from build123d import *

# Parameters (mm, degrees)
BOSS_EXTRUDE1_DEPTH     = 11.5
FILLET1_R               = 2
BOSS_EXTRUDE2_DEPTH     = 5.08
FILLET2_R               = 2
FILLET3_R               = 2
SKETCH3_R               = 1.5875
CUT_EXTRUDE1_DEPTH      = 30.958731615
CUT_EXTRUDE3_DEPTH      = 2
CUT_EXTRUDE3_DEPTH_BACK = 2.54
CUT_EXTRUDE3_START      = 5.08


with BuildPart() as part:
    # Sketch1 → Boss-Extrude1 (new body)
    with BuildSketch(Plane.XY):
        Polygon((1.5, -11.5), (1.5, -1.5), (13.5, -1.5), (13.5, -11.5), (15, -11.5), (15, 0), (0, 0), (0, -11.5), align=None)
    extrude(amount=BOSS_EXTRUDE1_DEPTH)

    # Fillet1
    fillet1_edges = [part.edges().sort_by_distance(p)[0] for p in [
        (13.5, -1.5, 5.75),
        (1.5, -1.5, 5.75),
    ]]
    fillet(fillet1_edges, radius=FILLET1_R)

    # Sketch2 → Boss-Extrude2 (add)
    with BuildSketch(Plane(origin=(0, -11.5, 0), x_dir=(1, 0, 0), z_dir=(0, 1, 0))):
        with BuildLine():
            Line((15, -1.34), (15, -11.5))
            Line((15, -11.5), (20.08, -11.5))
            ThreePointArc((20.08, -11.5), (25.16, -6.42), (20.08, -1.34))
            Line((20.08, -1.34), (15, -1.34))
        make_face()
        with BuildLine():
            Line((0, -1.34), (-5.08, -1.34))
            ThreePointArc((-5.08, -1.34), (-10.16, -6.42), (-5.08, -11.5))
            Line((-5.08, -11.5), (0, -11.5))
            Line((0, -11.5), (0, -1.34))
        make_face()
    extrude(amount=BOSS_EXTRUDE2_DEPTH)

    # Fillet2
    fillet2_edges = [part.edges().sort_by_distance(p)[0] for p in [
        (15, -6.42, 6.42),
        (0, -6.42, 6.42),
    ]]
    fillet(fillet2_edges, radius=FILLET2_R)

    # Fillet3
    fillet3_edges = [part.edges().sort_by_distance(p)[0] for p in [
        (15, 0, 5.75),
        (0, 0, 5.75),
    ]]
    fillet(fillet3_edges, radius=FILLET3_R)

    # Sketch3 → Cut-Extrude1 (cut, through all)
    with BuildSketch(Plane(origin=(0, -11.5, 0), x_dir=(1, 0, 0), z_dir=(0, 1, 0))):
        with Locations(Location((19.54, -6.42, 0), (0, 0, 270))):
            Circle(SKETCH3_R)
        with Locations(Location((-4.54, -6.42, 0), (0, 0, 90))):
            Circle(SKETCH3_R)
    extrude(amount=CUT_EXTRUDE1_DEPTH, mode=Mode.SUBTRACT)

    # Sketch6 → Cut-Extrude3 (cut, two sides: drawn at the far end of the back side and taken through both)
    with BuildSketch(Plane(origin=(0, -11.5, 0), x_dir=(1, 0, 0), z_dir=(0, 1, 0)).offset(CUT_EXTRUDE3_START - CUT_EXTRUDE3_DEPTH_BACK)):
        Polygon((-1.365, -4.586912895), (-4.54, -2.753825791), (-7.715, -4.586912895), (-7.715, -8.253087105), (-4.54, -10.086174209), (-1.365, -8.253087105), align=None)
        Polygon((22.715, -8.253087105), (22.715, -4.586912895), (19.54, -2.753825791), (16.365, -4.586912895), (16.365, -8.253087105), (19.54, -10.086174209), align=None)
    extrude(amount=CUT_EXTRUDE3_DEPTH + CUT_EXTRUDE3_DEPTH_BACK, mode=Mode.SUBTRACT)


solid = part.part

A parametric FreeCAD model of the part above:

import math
import FreeCAD as App
import Part
import Sketcher
Q = App.Units.Quantity


def edges_at(feature, points):
    """Names of the edges that pass closest to the given points."""
    edges = feature.Shape.Edges
    near = lambda p: min(range(len(edges)), key=lambda i: edges[i].distToShape(Part.Vertex(*p))[0])
    return sorted({f"Edge{near(p) + 1}" for p in points})

doc = App.newDocument("Part")
body = doc.addObject("PartDesign::Body", "Body")

# Sketch on XY plane
sketch1 = body.newObject("Sketcher::SketchObject", "Sketch")
sketch1.AttachmentSupport = (doc.getObject("XY_Plane"), [""])
sketch1.MapMode = "FlatFace"
sketch1.addGeometry(Part.LineSegment(App.Vector(1.5, -11.5, 0), App.Vector(1.5, -1.5, 0)), False)
sketch1.addGeometry(Part.LineSegment(App.Vector(1.5, -1.5, 0), App.Vector(13.5, -1.5, 0)), False)
sketch1.addGeometry(Part.LineSegment(App.Vector(13.5, -1.5, 0), App.Vector(13.5, -11.5, 0)), False)
sketch1.addGeometry(Part.LineSegment(App.Vector(13.5, -11.5, 0), App.Vector(15, -11.5, 0)), False)
sketch1.addGeometry(Part.LineSegment(App.Vector(15, -11.5, 0), App.Vector(15, 0, 0)), False)
sketch1.addGeometry(Part.LineSegment(App.Vector(15, 0, 0), App.Vector(0, 0, 0)), False)
sketch1.addGeometry(Part.LineSegment(App.Vector(0, 0, 0), App.Vector(0, -11.5, 0)), False)
sketch1.addGeometry(Part.LineSegment(App.Vector(0, -11.5, 0), App.Vector(1.5, -11.5, 0)), False)
sketch1.addConstraint(Sketcher.Constraint("Coincident", 0, 2, 1, 1))
sketch1.addConstraint(Sketcher.Constraint("Coincident", 1, 2, 2, 1))
sketch1.addConstraint(Sketcher.Constraint("Coincident", 2, 2, 3, 1))
sketch1.addConstraint(Sketcher.Constraint("Coincident", 3, 2, 4, 1))
sketch1.addConstraint(Sketcher.Constraint("Coincident", 4, 2, 5, 1))
sketch1.addConstraint(Sketcher.Constraint("Coincident", 5, 2, 6, 1))
sketch1.addConstraint(Sketcher.Constraint("Coincident", 6, 2, 7, 1))
sketch1.addConstraint(Sketcher.Constraint("Coincident", 7, 2, 0, 1))
sketch1.addConstraint(Sketcher.Constraint("Vertical", 0))
sketch1.addConstraint(Sketcher.Constraint("Horizontal", 1))
sketch1.addConstraint(Sketcher.Constraint("Vertical", 2))
sketch1.addConstraint(Sketcher.Constraint("Horizontal", 3))
sketch1.addConstraint(Sketcher.Constraint("Vertical", 4))
sketch1.addConstraint(Sketcher.Constraint("Horizontal", 5))
sketch1.addConstraint(Sketcher.Constraint("Vertical", 6))
sketch1.addConstraint(Sketcher.Constraint("Horizontal", 7))
sketch1.addConstraint(Sketcher.Constraint("Coincident", 5, 2, -1, 1))
sketch1.addConstraint(Sketcher.Constraint("Horizontal", 3, 2, 6, 2))
sketch1.addConstraint(Sketcher.Constraint("Equal", 3, 7))
sketch1.addConstraint(Sketcher.Constraint("DistanceX", 1, 1, 1, 2, Q("12 mm")))
sketch1.addConstraint(Sketcher.Constraint("DistanceX", 5, 2, 5, 1, Q("15 mm")))
sketch1.addConstraint(Sketcher.Constraint("DistanceY", 0, 1, 0, 2, Q("10 mm")))
sketch1.addConstraint(Sketcher.Constraint("DistanceY", 4, 1, 4, 2, Q("11.5 mm")))
pad1 = body.newObject("PartDesign::Pad", "Pad")
pad1.Profile = sketch1
pad1.Length = 11.5
doc.recompute()

fillet = body.newObject("PartDesign::Fillet", "Fillet")
fillet.Base = (pad1, edges_at(pad1, [(13.5, -1.5, 5.75), (1.5, -1.5, 5.75)]))
fillet.Radius = 2

# Sketch on XZ plane
sketch2 = body.newObject("Sketcher::SketchObject", "Sketch001")
sketch2.AttachmentSupport = (doc.getObject("XZ_Plane"), [""])
sketch2.MapMode = "FlatFace"
sketch2.AttachmentOffset = App.Placement(App.Vector(0, 0, 11.5), App.Rotation())
sketch2.addGeometry(Part.LineSegment(App.Vector(15, 1, 0), App.Vector(15, 12, 0)), False)
sketch2.addGeometry(Part.LineSegment(App.Vector(15, 12, 0), App.Vector(20, 12, 0)), False)
sketch2.addGeometry(Part.ArcOfCircle(Part.Circle(App.Vector(20, 6, 0), App.Vector(0, 0, 1), 5), math.radians(-90), math.radians(90)), False)
sketch2.addGeometry(Part.LineSegment(App.Vector(20, 1, 0), App.Vector(15, 1, 0)), False)
sketch2.addGeometry(Part.LineSegment(App.Vector(0, 1, 0), App.Vector(-5, 1, 0)), False)
sketch2.addGeometry(Part.ArcOfCircle(Part.Circle(App.Vector(-5, 6, 0), App.Vector(0, 0, 1), 5), math.radians(90), math.radians(270)), False)
sketch2.addGeometry(Part.LineSegment(App.Vector(-5, 12, 0), App.Vector(0, 12, 0)), False)
sketch2.addGeometry(Part.LineSegment(App.Vector(0, 12, 0), App.Vector(0, 1, 0)), False)
sketch2.addConstraint(Sketcher.Constraint("Coincident", 0, 2, 1, 1))
sketch2.addConstraint(Sketcher.Constraint("Tangent", 1, 2, 2, 2))
sketch2.addConstraint(Sketcher.Constraint("Tangent", 2, 1, 3, 1))
sketch2.addConstraint(Sketcher.Constraint("Coincident", 3, 2, 0, 1))
sketch2.addConstraint(Sketcher.Constraint("Tangent", 4, 2, 5, 2))
sketch2.addConstraint(Sketcher.Constraint("Tangent", 5, 1, 6, 1))
sketch2.addConstraint(Sketcher.Constraint("Coincident", 6, 2, 7, 1))
sketch2.addConstraint(Sketcher.Constraint("Coincident", 7, 2, 4, 1))
sketch2.addConstraint(Sketcher.Constraint("Vertical", 0))
sketch2.addConstraint(Sketcher.Constraint("Horizontal", 1))
sketch2.addConstraint(Sketcher.Constraint("Horizontal", 3))
sketch2.addConstraint(Sketcher.Constraint("Horizontal", 4))
sketch2.addConstraint(Sketcher.Constraint("Horizontal", 6))
sketch2.addConstraint(Sketcher.Constraint("Vertical", 7))
sketch2.addConstraint(Sketcher.Constraint("Equal", 2, 5))
sketch2.addConstraint(Sketcher.Constraint("PointOnObject", 6, 2, -2))
sketch2.addConstraint(Sketcher.Constraint("Horizontal", 2, 3, 5, 3))
sketch2.addConstraint(Sketcher.Constraint("Equal", 3, 4))
sketch2.addConstraint(Sketcher.Constraint("Radius", 2, Q("5.08 mm")))
sketch2.addConstraint(Sketcher.Constraint("DistanceX", -1, 1, 0, 2, Q("15 mm")))
sketch2.addConstraint(Sketcher.Constraint("DistanceX", 1, 1, 1, 2, Q("5.08 mm")))
sketch2.addConstraint(Sketcher.Constraint("DistanceY", -1, 1, 0, 2, Q("11.5 mm")))
pad2 = body.newObject("PartDesign::Pad", "Pad001")
pad2.Profile = sketch2
pad2.Length = 5.08
pad2.Reversed = True
doc.recompute()

fillet2 = body.newObject("PartDesign::Fillet", "Fillet001")
fillet2.Base = (pad2, edges_at(pad2, [(15, -6.42, 6.42), (0, -6.42, 6.42)]))
fillet2.Radius = 2
doc.recompute()

fillet3 = body.newObject("PartDesign::Fillet", "Fillet002")
fillet3.Base = (fillet2, edges_at(fillet2, [(15, 0, 5.75), (0, 0, 5.75)]))
fillet3.Radius = 2

# Sketch on XZ plane
sketch3 = body.newObject("Sketcher::SketchObject", "Sketch002")
sketch3.AttachmentSupport = (doc.getObject("XZ_Plane"), [""])
sketch3.MapMode = "FlatFace"
sketch3.AttachmentOffset = App.Placement(App.Vector(0, 0, 11.5), App.Rotation())
sketch3.addGeometry(Part.Circle(App.Vector(19.5, 6.4, 0), App.Vector(0, 0, 1), 1.6), False)
sketch3.addGeometry(Part.Circle(App.Vector(-4.5, 6.4, 0), App.Vector(0, 0, 1), 1.6), False)
sketch3.addConstraint(Sketcher.Constraint("Equal", 0, 1))
sketch3.addConstraint(Sketcher.Constraint("Horizontal", 0, 3, 1, 3))
sketch3.addConstraint(Sketcher.Constraint("Diameter", 0, Q("3.175 mm")))
sketch3.addConstraint(Sketcher.Constraint("DistanceX", -1, 1, 0, 3, Q("19.54 mm")))
sketch3.addConstraint(Sketcher.Constraint("DistanceY", -1, 1, 0, 3, Q("6.42 mm")))
sketch3.addConstraint(Sketcher.Constraint("DistanceX", 1, 3, -1, 1, Q("4.54 mm")))
pocket1 = body.newObject("PartDesign::Pocket", "Pocket")
pocket1.Profile = sketch3
pocket1.Type = "ThroughAll"

# Sketch on XZ plane
sketch4 = body.newObject("Sketcher::SketchObject", "Sketch003")
sketch4.AttachmentSupport = (doc.getObject("XZ_Plane"), [""])
sketch4.MapMode = "FlatFace"
sketch4.AttachmentOffset = App.Placement(App.Vector(0, 0, 6.42), App.Rotation())
sketch4.addGeometry(Part.LineSegment(App.Vector(-1.4, 4.6, 0), App.Vector(-4.5, 2.8, 0)), False)
sketch4.addGeometry(Part.LineSegment(App.Vector(-4.5, 2.8, 0), App.Vector(-7.7, 4.6, 0)), False)
sketch4.addGeometry(Part.LineSegment(App.Vector(-7.7, 4.6, 0), App.Vector(-7.7, 8.3, 0)), False)
sketch4.addGeometry(Part.LineSegment(App.Vector(-7.7, 8.3, 0), App.Vector(-4.5, 10.1, 0)), False)
sketch4.addGeometry(Part.LineSegment(App.Vector(-4.5, 10.1, 0), App.Vector(-1.4, 8.3, 0)), False)
sketch4.addGeometry(Part.LineSegment(App.Vector(-1.4, 8.3, 0), App.Vector(-1.4, 4.6, 0)), False)
sketch4.addGeometry(Part.LineSegment(App.Vector(22.7, 8.3, 0), App.Vector(22.7, 4.6, 0)), False)
sketch4.addGeometry(Part.LineSegment(App.Vector(22.7, 4.6, 0), App.Vector(19.5, 2.8, 0)), False)
sketch4.addGeometry(Part.LineSegment(App.Vector(19.5, 2.8, 0), App.Vector(16.4, 4.6, 0)), False)
sketch4.addGeometry(Part.LineSegment(App.Vector(16.4, 4.6, 0), App.Vector(16.4, 8.3, 0)), False)
sketch4.addGeometry(Part.LineSegment(App.Vector(16.4, 8.3, 0), App.Vector(19.5, 10.1, 0)), False)
sketch4.addGeometry(Part.LineSegment(App.Vector(19.5, 10.1, 0), App.Vector(22.7, 8.3, 0)), False)
sketch4.addConstraint(Sketcher.Constraint("Coincident", 0, 2, 1, 1))
sketch4.addConstraint(Sketcher.Constraint("Coincident", 1, 2, 2, 1))
sketch4.addConstraint(Sketcher.Constraint("Coincident", 2, 2, 3, 1))
sketch4.addConstraint(Sketcher.Constraint("Coincident", 3, 2, 4, 1))
sketch4.addConstraint(Sketcher.Constraint("Coincident", 4, 2, 5, 1))
sketch4.addConstraint(Sketcher.Constraint("Coincident", 5, 2, 0, 1))
sketch4.addConstraint(Sketcher.Constraint("Coincident", 6, 2, 7, 1))
sketch4.addConstraint(Sketcher.Constraint("Coincident", 7, 2, 8, 1))
sketch4.addConstraint(Sketcher.Constraint("Coincident", 8, 2, 9, 1))
sketch4.addConstraint(Sketcher.Constraint("Coincident", 9, 2, 10, 1))
sketch4.addConstraint(Sketcher.Constraint("Coincident", 10, 2, 11, 1))
sketch4.addConstraint(Sketcher.Constraint("Coincident", 11, 2, 6, 1))
sketch4.addConstraint(Sketcher.Constraint("Vertical", 2))
sketch4.addConstraint(Sketcher.Constraint("Vertical", 5))
sketch4.addConstraint(Sketcher.Constraint("Vertical", 6))
sketch4.addConstraint(Sketcher.Constraint("Vertical", 9))
sketch4.addConstraint(Sketcher.Constraint("Parallel", 0, 3))
sketch4.addConstraint(Sketcher.Constraint("Parallel", 1, 4))
sketch4.addConstraint(Sketcher.Constraint("Parallel", 3, 7))
sketch4.addConstraint(Sketcher.Constraint("Parallel", 4, 8))
sketch4.addConstraint(Sketcher.Constraint("Parallel", 7, 10))
sketch4.addConstraint(Sketcher.Constraint("Parallel", 8, 11))
sketch4.addConstraint(Sketcher.Constraint("Horizontal", 2, 2, 4, 2))
sketch4.addConstraint(Sketcher.Constraint("Horizontal", 1, 2, 5, 2))
sketch4.addConstraint(Sketcher.Constraint("Horizontal", 5, 2, 6, 2))
sketch4.addConstraint(Sketcher.Constraint("Horizontal", 0, 2, 7, 2))
sketch4.addConstraint(Sketcher.Constraint("Horizontal", 6, 2, 8, 2))
sketch4.addConstraint(Sketcher.Constraint("Horizontal", 4, 2, 9, 2))
sketch4.addConstraint(Sketcher.Constraint("Horizontal", 3, 2, 10, 2))
sketch4.addConstraint(Sketcher.Constraint("Vertical", 0, 2, 3, 2))
sketch4.addConstraint(Sketcher.Constraint("Angle", 0, Q("-150 deg")))
sketch4.addConstraint(Sketcher.Constraint("DistanceX", 0, 2, -1, 1, Q("4.54 mm")))
sketch4.addConstraint(Sketcher.Constraint("DistanceX", -1, 1, 7, 2, Q("19.54 mm")))
sketch4.addConstraint(Sketcher.Constraint("DistanceX", 2, 2, 4, 2, Q("6.35 mm")))
sketch4.addConstraint(Sketcher.Constraint("DistanceY", 2, 1, 2, 2, Q("3.666174 mm")))
sketch4.addConstraint(Sketcher.Constraint("DistanceY", -1, 1, 0, 2, Q("2.753826 mm")))
pocket2 = body.newObject("PartDesign::Pocket", "Pocket001")
pocket2.Profile = sketch4
pocket2.Type = "TwoLengths"
pocket2.Length = 2
pocket2.Length2 = 2.54

doc.recompute()
